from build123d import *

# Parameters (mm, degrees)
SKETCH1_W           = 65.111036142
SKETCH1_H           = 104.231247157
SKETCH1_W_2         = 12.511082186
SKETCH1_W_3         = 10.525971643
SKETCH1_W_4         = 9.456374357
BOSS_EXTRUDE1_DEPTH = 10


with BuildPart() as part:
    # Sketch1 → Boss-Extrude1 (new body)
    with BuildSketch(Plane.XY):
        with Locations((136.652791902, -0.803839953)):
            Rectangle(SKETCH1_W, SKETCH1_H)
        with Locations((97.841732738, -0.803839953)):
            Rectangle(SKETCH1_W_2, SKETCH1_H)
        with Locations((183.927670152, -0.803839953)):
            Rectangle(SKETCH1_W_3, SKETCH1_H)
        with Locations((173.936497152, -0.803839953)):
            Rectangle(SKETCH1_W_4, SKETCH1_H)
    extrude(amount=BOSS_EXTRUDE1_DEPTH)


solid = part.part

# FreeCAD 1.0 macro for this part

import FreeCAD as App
import Part
import Sketcher

V = App.Vector

doc = App.newDocument("Part")
body = doc.addObject("PartDesign::Body", "Body")

# Sketch on XY plane
sketch1 = doc.addObject("Sketcher::SketchObject", "Sketch")
body.addObject(sketch1)
sketch1.AttachmentSupport = (doc.XY_Plane, [""])
sketch1.MapMode = "FlatFace"
sketch1.addGeometry(Part.LineSegment(V(91.586192, 51.311784, 0), V(91.586192, -52.919464, 0)), False)
sketch1.addGeometry(Part.LineSegment(V(91.586192, -52.919464, 0), V(189.190656, -52.919464, 0)), False)
sketch1.addGeometry(Part.LineSegment(V(189.190656, -52.919464, 0), V(189.190656, 51.311784, 0)), False)
sketch1.addGeometry(Part.LineSegment(V(189.190656, 51.311784, 0), V(91.586192, 51.311784, 0)), False)
sketch1.addConstraint(Sketcher.Constraint("Coincident", 0, 2, 1, 1))
sketch1.addConstraint(Sketcher.Constraint("Coincident", 1, 2, 2, 1))
sketch1.addConstraint(Sketcher.Constraint("Coincident", 2, 2, 3, 1))
sketch1.addConstraint(Sketcher.Constraint("Coincident", 3, 2, 0, 1))
sketch1.addConstraint(Sketcher.Constraint("Vertical", 0))
sketch1.addConstraint(Sketcher.Constraint("Horizontal", 1))
sketch1.addConstraint(Sketcher.Constraint("Vertical", 2))
sketch1.addConstraint(Sketcher.Constraint("Horizontal", 3))
sketch1.addConstraint(Sketcher.Constraint("DistanceX", 1, 1, 1, 2, 97.604464))
sketch1.addConstraint(Sketcher.Constraint("DistanceY", 0, 2, 0, 1, 104.231247))
sketch1.addConstraint(Sketcher.Constraint("DistanceX", -1, 1, 0, 2, 91.586192))
sketch1.addConstraint(Sketcher.Constraint("DistanceY", 0, 2, -1, 1, 52.919464))
pad1 = doc.addObject("PartDesign::Pad", "Pad")
body.addObject(pad1)
pad1.Profile = sketch1
pad1.Length = 10

doc.recompute()
